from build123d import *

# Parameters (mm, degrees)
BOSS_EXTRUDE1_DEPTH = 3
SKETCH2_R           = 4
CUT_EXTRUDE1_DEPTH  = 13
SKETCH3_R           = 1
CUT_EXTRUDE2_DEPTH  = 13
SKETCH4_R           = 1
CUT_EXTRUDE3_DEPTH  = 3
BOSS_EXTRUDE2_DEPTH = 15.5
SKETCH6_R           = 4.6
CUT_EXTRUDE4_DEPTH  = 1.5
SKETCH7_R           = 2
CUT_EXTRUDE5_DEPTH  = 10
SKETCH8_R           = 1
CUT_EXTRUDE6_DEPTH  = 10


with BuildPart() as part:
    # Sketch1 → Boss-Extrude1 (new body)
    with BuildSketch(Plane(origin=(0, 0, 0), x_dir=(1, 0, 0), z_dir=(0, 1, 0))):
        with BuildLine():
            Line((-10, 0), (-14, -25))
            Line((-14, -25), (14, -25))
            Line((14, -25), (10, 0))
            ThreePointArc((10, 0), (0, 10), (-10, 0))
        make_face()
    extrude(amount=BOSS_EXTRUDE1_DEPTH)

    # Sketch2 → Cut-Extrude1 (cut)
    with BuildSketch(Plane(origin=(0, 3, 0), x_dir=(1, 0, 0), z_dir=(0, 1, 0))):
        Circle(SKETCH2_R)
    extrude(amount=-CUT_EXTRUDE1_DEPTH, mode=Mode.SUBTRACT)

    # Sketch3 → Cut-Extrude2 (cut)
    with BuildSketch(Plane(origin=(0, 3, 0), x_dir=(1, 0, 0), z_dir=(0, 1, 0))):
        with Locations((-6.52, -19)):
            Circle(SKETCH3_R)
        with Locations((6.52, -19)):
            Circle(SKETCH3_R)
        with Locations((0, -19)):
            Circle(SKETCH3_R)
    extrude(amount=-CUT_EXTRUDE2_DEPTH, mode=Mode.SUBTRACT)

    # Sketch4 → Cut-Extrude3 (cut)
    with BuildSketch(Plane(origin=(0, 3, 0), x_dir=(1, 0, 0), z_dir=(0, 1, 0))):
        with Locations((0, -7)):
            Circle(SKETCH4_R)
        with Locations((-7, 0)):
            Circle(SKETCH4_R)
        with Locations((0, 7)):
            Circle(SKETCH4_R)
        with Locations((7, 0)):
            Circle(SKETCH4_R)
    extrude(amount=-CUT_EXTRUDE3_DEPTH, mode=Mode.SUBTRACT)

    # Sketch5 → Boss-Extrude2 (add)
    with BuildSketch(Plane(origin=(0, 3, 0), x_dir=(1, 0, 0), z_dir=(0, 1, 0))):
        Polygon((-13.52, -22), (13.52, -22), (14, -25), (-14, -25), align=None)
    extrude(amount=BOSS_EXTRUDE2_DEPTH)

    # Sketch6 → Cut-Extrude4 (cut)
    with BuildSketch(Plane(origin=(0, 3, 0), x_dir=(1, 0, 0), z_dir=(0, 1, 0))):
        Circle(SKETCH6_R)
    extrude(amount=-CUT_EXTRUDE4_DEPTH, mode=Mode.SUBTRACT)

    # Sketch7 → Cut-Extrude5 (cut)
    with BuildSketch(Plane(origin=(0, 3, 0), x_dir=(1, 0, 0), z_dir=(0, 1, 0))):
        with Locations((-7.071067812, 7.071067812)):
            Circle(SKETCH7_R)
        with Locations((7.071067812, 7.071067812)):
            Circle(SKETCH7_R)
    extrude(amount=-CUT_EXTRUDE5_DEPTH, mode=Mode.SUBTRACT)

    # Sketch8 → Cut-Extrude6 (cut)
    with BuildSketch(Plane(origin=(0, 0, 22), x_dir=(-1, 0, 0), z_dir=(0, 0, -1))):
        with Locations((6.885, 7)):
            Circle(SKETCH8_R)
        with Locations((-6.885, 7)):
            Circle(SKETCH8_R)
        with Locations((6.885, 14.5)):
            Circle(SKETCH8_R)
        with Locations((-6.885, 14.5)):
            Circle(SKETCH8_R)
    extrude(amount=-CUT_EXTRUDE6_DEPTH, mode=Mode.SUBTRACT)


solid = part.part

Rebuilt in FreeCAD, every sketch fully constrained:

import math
import FreeCAD as App
import Part
import Sketcher
Q = App.Units.Quantity


def add_polygon(sketch, points):
    """Adds a closed chain of lines whose ends are joined by coincident constraints."""
    first, n = sketch.GeometryCount, len(points)
    for a, b in zip(points, points[1:] + points[:1]):
        sketch.addGeometry(Part.LineSegment(App.Vector(*a, 0), App.Vector(*b, 0)), False)
    for i in range(n):
        sketch.addConstraint(Sketcher.Constraint("Coincident", first + i, 2, first + (i + 1) % n, 1))

doc = App.newDocument("Part")
params = doc.addObject("Spreadsheet::Sheet", "Params")
for row, (alias, value) in enumerate([
    ("sketch1_radius", "10 mm"),
    ("sketch1_width", "28 mm"),
    ("pad1_length", "3 mm"),
    ("sketch2_diameter", "8 mm"),
    ("pocket1_length", "13 mm"),
    ("sketch3_diameter", "2 mm"),
    ("pocket2_length", "13 mm"),
    ("sketch4_diameter", "2 mm"),
    ("pocket3_length", "3 mm"),
    ("sketch5_width", "28 mm"),
    ("sketch5_width2", "27.04 mm"),
    ("pad2_length", "15.5 mm"),
    ("sketch6_diameter", "9.2 mm"),
    ("pocket4_length", "1.5 mm"),
    ("sketch7_diameter", "4 mm"),
    ("pocket5_length", "10 mm"),
    ("sketch8_diameter", "2 mm"),
    ("pocket6_length", "10 mm"),
], start=1):
    params.set(f"A{row}", alias)
    params.set(f"B{row}", "=" + value)
    params.setAlias(f"B{row}", alias)

body = doc.addObject("PartDesign::Body", "Body")

sketch1 = doc.addObject("Sketcher::SketchObject", "Sketch")
body.addObject(sketch1)
sketch1.AttachmentSupport = (doc.XZ_Plane, [""])
sketch1.MapMode = "FlatFace"
sketch1.addGeometry(Part.LineSegment(App.Vector(-10, 0, 0), App.Vector(-14, 25, 0)), False)
sketch1.addGeometry(Part.LineSegment(App.Vector(-14, 25, 0), App.Vector(14, 25, 0)), False)
sketch1.addGeometry(Part.LineSegment(App.Vector(14, 25, 0), App.Vector(10, 0, 0)), False)
sketch1.addGeometry(Part.ArcOfCircle(Part.Circle(App.Vector(0, 0, 0), App.Vector(0, 0, 1), 10), math.radians(180), math.radians(360)), False)
sketch1.addConstraint(Sketcher.Constraint("Coincident", 0, 2, 1, 1))
sketch1.addConstraint(Sketcher.Constraint("Coincident", 1, 2, 2, 1))
sketch1.addConstraint(Sketcher.Constraint("Coincident", 2, 2, 3, 2))
sketch1.addConstraint(Sketcher.Constraint("Coincident", 3, 1, 0, 1))
sketch1.addConstraint(Sketcher.Constraint("Horizontal", 1))
sketch1.addConstraint(Sketcher.Constraint("Coincident", 3, 3, -1, 1))
sketch1.addConstraint(Sketcher.Constraint("PointOnObject", 2, 2, -1))
sketch1.addConstraint(Sketcher.Constraint("PointOnObject", 3, 1, -1))
sketch1.addConstraint(Sketcher.Constraint("Equal", 0, 2))
sketch1.addConstraint(Sketcher.Constraint("Radius", 3, Q("10 mm")))
sketch1.addConstraint(Sketcher.Constraint("DistanceX", 1, 1, 1, 2, Q("28 mm")))
sketch1.addConstraint(Sketcher.Constraint("DistanceY", -1, 1, 0, 2, Q("25 mm")))
sketch1.setExpression("Constraints[9]", "Params.sketch1_radius")
sketch1.setExpression("Constraints[10]", "Params.sketch1_width")
pad1 = doc.addObject("PartDesign::Pad", "Pad")
body.addObject(pad1)
pad1.Profile = sketch1
pad1.setExpression("Length", "Params.pad1_length")
pad1.Reversed = True

sketch2 = doc.addObject("Sketcher::SketchObject", "Sketch001")
body.addObject(sketch2)
sketch2.AttachmentSupport = (doc.XZ_Plane, [""])
sketch2.MapMode = "FlatFace"
sketch2.AttachmentOffset = App.Placement(App.Vector(0, 0, -3), App.Rotation())
sketch2.addGeometry(Part.Circle(App.Vector(0, 0, 0), App.Vector(0, 0, 1), 4), False)
sketch2.addConstraint(Sketcher.Constraint("Coincident", 0, 3, -1, 1))
sketch2.addConstraint(Sketcher.Constraint("Diameter", 0, Q("8 mm")))
sketch2.setExpression("Constraints[1]", "Params.sketch2_diameter")
pocket1 = doc.addObject("PartDesign::Pocket", "Pocket")
body.addObject(pocket1)
pocket1.Profile = sketch2
pocket1.setExpression("Length", "Params.pocket1_length")
pocket1.Reversed = True

sketch3 = doc.addObject("Sketcher::SketchObject", "Sketch002")
body.addObject(sketch3)
sketch3.AttachmentSupport = (doc.XZ_Plane, [""])
sketch3.MapMode = "FlatFace"
sketch3.AttachmentOffset = App.Placement(App.Vector(0, 0, -3), App.Rotation())
sketch3.addGeometry(Part.Circle(App.Vector(-6.52, 19, 0), App.Vector(0, 0, 1), 1), False)
sketch3.addGeometry(Part.Circle(App.Vector(6.52, 19, 0), App.Vector(0, 0, 1), 1), False)
sketch3.addGeometry(Part.Circle(App.Vector(0, 19, 0), App.Vector(0, 0, 1), 1), False)
sketch3.addConstraint(Sketcher.Constraint("Equal", 0, 1))
sketch3.addConstraint(Sketcher.Constraint("Equal", 1, 2))
sketch3.addConstraint(Sketcher.Constraint("Symmetric", 0, 3, 1, 3, -2))
sketch3.addConstraint(Sketcher.Constraint("PointOnObject", 2, 3, -2))
sketch3.addConstraint(Sketcher.Constraint("Horizontal", 1, 3, 2, 3))
sketch3.addConstraint(Sketcher.Constraint("Diameter", 0, Q("2 mm")))
sketch3.addConstraint(Sketcher.Constraint("DistanceY", -1, 1, 0, 3, Q("19 mm")))
sketch3.addConstraint(Sketcher.Constraint("DistanceX", 0, 3, -1, 1, Q("6.52 mm")))
sketch3.setExpression("Constraints[5]", "Params.sketch3_diameter")
pocket2 = doc.addObject("PartDesign::Pocket", "Pocket001")
body.addObject(pocket2)
pocket2.Profile = sketch3
pocket2.setExpression("Length", "Params.pocket2_length")
pocket2.Reversed = True

sketch4 = doc.addObject("Sketcher::SketchObject", "Sketch003")
body.addObject(sketch4)
sketch4.AttachmentSupport = (doc.XZ_Plane, [""])
sketch4.MapMode = "FlatFace"
sketch4.AttachmentOffset = App.Placement(App.Vector(0, 0, -3), App.Rotation())
sketch4.addGeometry(Part.Circle(App.Vector(0, 7, 0), App.Vector(0, 0, 1), 1), False)
sketch4.addGeometry(Part.Circle(App.Vector(-7, 0, 0), App.Vector(0, 0, 1), 1), False)
sketch4.addGeometry(Part.Circle(App.Vector(0, -7, 0), App.Vector(0, 0, 1), 1), False)
sketch4.addGeometry(Part.Circle(App.Vector(7, 0, 0), App.Vector(0, 0, 1), 1), False)
sketch4.addConstraint(Sketcher.Constraint("Equal", 0, 1))
sketch4.addConstraint(Sketcher.Constraint("Equal", 1, 2))
sketch4.addConstraint(Sketcher.Constraint("Equal", 2, 3))
sketch4.addConstraint(Sketcher.Constraint("Symmetric", 0, 3, 2, 3, -1, 1))
sketch4.addConstraint(Sketcher.Constraint("Symmetric", 1, 3, 3, 3, -1, 1))
sketch4.addConstraint(Sketcher.Constraint("PointOnObject", 0, 3, -2))
sketch4.addConstraint(Sketcher.Constraint("PointOnObject", 1, 3, -1))
sketch4.addConstraint(Sketcher.Constraint("Diameter", 0, Q("2 mm")))
sketch4.addConstraint(Sketcher.Constraint("DistanceY", -1, 1, 0, 3, Q("7 mm")))
sketch4.addConstraint(Sketcher.Constraint("DistanceX", 1, 3, -1, 1, Q("7 mm")))
sketch4.setExpression("Constraints[7]", "Params.sketch4_diameter")
pocket3 = doc.addObject("PartDesign::Pocket", "Pocket002")
body.addObject(pocket3)
pocket3.Profile = sketch4
pocket3.setExpression("Length", "Params.pocket3_length")
pocket3.Reversed = True

sketch5 = doc.addObject("Sketcher::SketchObject", "Sketch004")
body.addObject(sketch5)
sketch5.AttachmentSupport = (doc.XZ_Plane, [""])
sketch5.MapMode = "FlatFace"
sketch5.AttachmentOffset = App.Placement(App.Vector(0, 0, -3), App.Rotation())
add_polygon(sketch5, [(13.52, 22), (-13.52, 22), (-14, 25), (14, 25)])
sketch5.addConstraint(Sketcher.Constraint("Horizontal", 0))
sketch5.addConstraint(Sketcher.Constraint("Horizontal", 2))
sketch5.addConstraint(Sketcher.Constraint("Equal", 1, 3))
sketch5.addConstraint(Sketcher.Constraint("DistanceX", 2, 1, 2, 2, Q("28 mm")))
sketch5.addConstraint(Sketcher.Constraint("DistanceY", -1, 1, 0, 2, Q("22 mm")))
sketch5.addConstraint(Sketcher.Constraint("DistanceX", 1, 2, -1, 1, Q("14 mm")))
sketch5.addConstraint(Sketcher.Constraint("DistanceY", -1, 1, 1, 2, Q("25 mm")))
sketch5.addConstraint(Sketcher.Constraint("DistanceX", 0, 2, 0, 1, Q("27.04 mm")))
sketch5.setExpression("Constraints[7]", "Params.sketch5_width")
sketch5.setExpression("Constraints[11]", "Params.sketch5_width2")
pad2 = doc.addObject("PartDesign::Pad", "Pad001")
body.addObject(pad2)
pad2.Profile = sketch5
pad2.setExpression("Length", "Params.pad2_length")
pad2.Reversed = True

sketch6 = doc.addObject("Sketcher::SketchObject", "Sketch005")
body.addObject(sketch6)
sketch6.AttachmentSupport = (doc.XZ_Plane, [""])
sketch6.MapMode = "FlatFace"
sketch6.AttachmentOffset = App.Placement(App.Vector(0, 0, -3), App.Rotation())
sketch6.addGeometry(Part.Circle(App.Vector(0, 0, 0), App.Vector(0, 0, 1), 4.6), False)
sketch6.addConstraint(Sketcher.Constraint("Coincident", 0, 3, -1, 1))
sketch6.addConstraint(Sketcher.Constraint("Diameter", 0, Q("9.2 mm")))
sketch6.setExpression("Constraints[1]", "Params.sketch6_diameter")
pocket4 = doc.addObject("PartDesign::Pocket", "Pocket003")
body.addObject(pocket4)
pocket4.Profile = sketch6
pocket4.setExpression("Length", "Params.pocket4_length")
pocket4.Reversed = True

sketch7 = doc.addObject("Sketcher::SketchObject", "Sketch006")
body.addObject(sketch7)
sketch7.AttachmentSupport = (doc.XZ_Plane, [""])
sketch7.MapMode = "FlatFace"
sketch7.AttachmentOffset = App.Placement(App.Vector(0, 0, -3), App.Rotation())
sketch7.addGeometry(Part.Circle(App.Vector(-7.071068, -7.071068, 0), App.Vector(0, 0, 1), 2), False)
sketch7.addGeometry(Part.Circle(App.Vector(7.071068, -7.071068, 0), App.Vector(0, 0, 1), 2), False)
sketch7.addConstraint(Sketcher.Constraint("Equal", 0, 1))
sketch7.addConstraint(Sketcher.Constraint("Symmetric", 0, 3, 1, 3, -2))
sketch7.addConstraint(Sketcher.Constraint("Diameter", 0, Q("4 mm")))
sketch7.addConstraint(Sketcher.Constraint("DistanceX", 0, 3, -1, 1, Q("7.071068 mm")))
sketch7.addConstraint(Sketcher.Constraint("DistanceY", 0, 3, -1, 1, Q("7.071068 mm")))
sketch7.setExpression("Constraints[2]", "Params.sketch7_diameter")
pocket5 = doc.addObject("PartDesign::Pocket", "Pocket004")
body.addObject(pocket5)
pocket5.Profile = sketch7
pocket5.setExpression("Length", "Params.pocket5_length")
pocket5.Reversed = True

sketch8 = doc.addObject("Sketcher::SketchObject", "Sketch007")
body.addObject(sketch8)
sketch8.AttachmentSupport = (doc.XY_Plane, [""])
sketch8.MapMode = "FlatFace"
sketch8.AttachmentOffset = App.Placement(App.Vector(0, 0, 22), App.Rotation())
sketch8.addGeometry(Part.Circle(App.Vector(-6.885, 7, 0), App.Vector(0, 0, 1), 1), False)
sketch8.addGeometry(Part.Circle(App.Vector(6.885, 7, 0), App.Vector(0, 0, 1), 1), False)
sketch8.addGeometry(Part.Circle(App.Vector(-6.885, 14.5, 0), App.Vector(0, 0, 1), 1), False)
sketch8.addGeometry(Part.Circle(App.Vector(6.885, 14.5, 0), App.Vector(0, 0, 1), 1), False)
sketch8.addConstraint(Sketcher.Constraint("Equal", 0, 1))
sketch8.addConstraint(Sketcher.Constraint("Equal", 1, 2))
sketch8.addConstraint(Sketcher.Constraint("Equal", 2, 3))
sketch8.addConstraint(Sketcher.Constraint("Symmetric", 0, 3, 1, 3, -2))
sketch8.addConstraint(Sketcher.Constraint("Symmetric", 2, 3, 3, 3, -2))
sketch8.addConstraint(Sketcher.Constraint("Vertical", 0, 3, 2, 3))
sketch8.addConstraint(Sketcher.Constraint("Diameter", 0, Q("2 mm")))
sketch8.addConstraint(Sketcher.Constraint("DistanceY", -1, 1, 0, 3, Q("7 mm")))
sketch8.addConstraint(Sketcher.Constraint("DistanceY", -1, 1, 2, 3, Q("14.5 mm")))
sketch8.addConstraint(Sketcher.Constraint("DistanceX", 0, 3, 1, 3, Q("13.77 mm")))
sketch8.setExpression("Constraints[6]", "Params.sketch8_diameter")
pocket6 = doc.addObject("PartDesign::Pocket", "Pocket005")
body.addObject(pocket6)
pocket6.Profile = sketch8
pocket6.setExpression("Length", "Params.pocket6_length")
pocket6.Reversed = True

doc.recompute()
